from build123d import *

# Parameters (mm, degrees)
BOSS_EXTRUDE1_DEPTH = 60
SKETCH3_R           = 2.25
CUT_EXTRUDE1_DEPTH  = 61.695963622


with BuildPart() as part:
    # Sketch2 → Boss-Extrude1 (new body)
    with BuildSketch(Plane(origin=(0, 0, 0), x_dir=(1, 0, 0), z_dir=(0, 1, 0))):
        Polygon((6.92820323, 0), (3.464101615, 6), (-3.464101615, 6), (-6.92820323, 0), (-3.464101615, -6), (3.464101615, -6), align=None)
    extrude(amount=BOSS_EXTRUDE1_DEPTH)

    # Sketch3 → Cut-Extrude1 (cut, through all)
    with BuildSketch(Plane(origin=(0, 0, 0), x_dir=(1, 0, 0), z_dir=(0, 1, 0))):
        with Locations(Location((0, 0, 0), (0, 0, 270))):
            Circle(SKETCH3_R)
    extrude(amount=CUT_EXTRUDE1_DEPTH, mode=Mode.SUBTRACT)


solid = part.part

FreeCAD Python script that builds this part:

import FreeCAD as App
import Part
import Sketcher
from FreeCAD import Vector
Q = App.Units.Quantity


def add_polygon(sketch, points):
    """Adds a closed chain of lines whose ends are joined by coincident constraints."""
    first, n = sketch.GeometryCount, len(points)
    for a, b in zip(points, points[1:] + points[:1]):
        sketch.addGeometry(Part.LineSegment(App.Vector(*a, 0), App.Vector(*b, 0)), False)
    for i in range(n):
        sketch.addConstraint(Sketcher.Constraint("Coincident", first + i, 2, first + (i + 1) % n, 1))

doc = App.newDocument("Part")
body = doc.addObject("PartDesign::Body", "Body")

sketch1 = body.newObject("Sketcher::SketchObject", "Sketch")
sketch1.AttachmentSupport = (doc.getObject("XZ_Plane"), [""])
sketch1.MapMode = "FlatFace"
add_polygon(sketch1, [(6.928203, 0), (3.464102, -6), (-3.464102, -6), (-6.928203, 0), (-3.464102, 6), (3.464102, 6)])
sketch1.addConstraint([
    Sketcher.Constraint("Horizontal", 1),
    Sketcher.Constraint("Horizontal", 4),
    Sketcher.Constraint("Symmetric", 0, 2, 3, 2, -1, 1),
    Sketcher.Constraint("Symmetric", 2, 2, 5, 2, -1, 1),
    Sketcher.Constraint("PointOnObject", 2, 2, -1),
    Sketcher.Constraint("Parallel", 2, 5),
    Sketcher.Constraint("Vertical", 1, 2, 3, 2),
    Sketcher.Constraint("Angle", 0, Q("-120 deg")),
    Sketcher.Constraint("DistanceY", 0, 2, -1, 1, Q("6 mm")),
    Sketcher.Constraint("DistanceX", -1, 1, 0, 2, Q("3.464102 mm")),
])
pad1 = body.newObject("PartDesign::Pad", "Pad")
pad1.Profile = sketch1
pad1.Length = 60
pad1.Reversed = True

sketch2 = body.newObject("Sketcher::SketchObject", "Sketch001")
sketch2.AttachmentSupport = (doc.getObject("XZ_Plane"), [""])
sketch2.MapMode = "FlatFace"
sketch2.addGeometry(Part.Circle(Vector(0, 0, 0), Vector(0, 0, 1), 2.25), False)
sketch2.addConstraint([
    Sketcher.Constraint("Coincident", 0, 3, -1, 1),
    Sketcher.Constraint("Diameter", 0, Q("4.5 mm")),
])
pocket1 = body.newObject("PartDesign::Pocket", "Pocket")
pocket1.Profile = sketch2
pocket1.Type = "ThroughAll"

doc.recompute()
